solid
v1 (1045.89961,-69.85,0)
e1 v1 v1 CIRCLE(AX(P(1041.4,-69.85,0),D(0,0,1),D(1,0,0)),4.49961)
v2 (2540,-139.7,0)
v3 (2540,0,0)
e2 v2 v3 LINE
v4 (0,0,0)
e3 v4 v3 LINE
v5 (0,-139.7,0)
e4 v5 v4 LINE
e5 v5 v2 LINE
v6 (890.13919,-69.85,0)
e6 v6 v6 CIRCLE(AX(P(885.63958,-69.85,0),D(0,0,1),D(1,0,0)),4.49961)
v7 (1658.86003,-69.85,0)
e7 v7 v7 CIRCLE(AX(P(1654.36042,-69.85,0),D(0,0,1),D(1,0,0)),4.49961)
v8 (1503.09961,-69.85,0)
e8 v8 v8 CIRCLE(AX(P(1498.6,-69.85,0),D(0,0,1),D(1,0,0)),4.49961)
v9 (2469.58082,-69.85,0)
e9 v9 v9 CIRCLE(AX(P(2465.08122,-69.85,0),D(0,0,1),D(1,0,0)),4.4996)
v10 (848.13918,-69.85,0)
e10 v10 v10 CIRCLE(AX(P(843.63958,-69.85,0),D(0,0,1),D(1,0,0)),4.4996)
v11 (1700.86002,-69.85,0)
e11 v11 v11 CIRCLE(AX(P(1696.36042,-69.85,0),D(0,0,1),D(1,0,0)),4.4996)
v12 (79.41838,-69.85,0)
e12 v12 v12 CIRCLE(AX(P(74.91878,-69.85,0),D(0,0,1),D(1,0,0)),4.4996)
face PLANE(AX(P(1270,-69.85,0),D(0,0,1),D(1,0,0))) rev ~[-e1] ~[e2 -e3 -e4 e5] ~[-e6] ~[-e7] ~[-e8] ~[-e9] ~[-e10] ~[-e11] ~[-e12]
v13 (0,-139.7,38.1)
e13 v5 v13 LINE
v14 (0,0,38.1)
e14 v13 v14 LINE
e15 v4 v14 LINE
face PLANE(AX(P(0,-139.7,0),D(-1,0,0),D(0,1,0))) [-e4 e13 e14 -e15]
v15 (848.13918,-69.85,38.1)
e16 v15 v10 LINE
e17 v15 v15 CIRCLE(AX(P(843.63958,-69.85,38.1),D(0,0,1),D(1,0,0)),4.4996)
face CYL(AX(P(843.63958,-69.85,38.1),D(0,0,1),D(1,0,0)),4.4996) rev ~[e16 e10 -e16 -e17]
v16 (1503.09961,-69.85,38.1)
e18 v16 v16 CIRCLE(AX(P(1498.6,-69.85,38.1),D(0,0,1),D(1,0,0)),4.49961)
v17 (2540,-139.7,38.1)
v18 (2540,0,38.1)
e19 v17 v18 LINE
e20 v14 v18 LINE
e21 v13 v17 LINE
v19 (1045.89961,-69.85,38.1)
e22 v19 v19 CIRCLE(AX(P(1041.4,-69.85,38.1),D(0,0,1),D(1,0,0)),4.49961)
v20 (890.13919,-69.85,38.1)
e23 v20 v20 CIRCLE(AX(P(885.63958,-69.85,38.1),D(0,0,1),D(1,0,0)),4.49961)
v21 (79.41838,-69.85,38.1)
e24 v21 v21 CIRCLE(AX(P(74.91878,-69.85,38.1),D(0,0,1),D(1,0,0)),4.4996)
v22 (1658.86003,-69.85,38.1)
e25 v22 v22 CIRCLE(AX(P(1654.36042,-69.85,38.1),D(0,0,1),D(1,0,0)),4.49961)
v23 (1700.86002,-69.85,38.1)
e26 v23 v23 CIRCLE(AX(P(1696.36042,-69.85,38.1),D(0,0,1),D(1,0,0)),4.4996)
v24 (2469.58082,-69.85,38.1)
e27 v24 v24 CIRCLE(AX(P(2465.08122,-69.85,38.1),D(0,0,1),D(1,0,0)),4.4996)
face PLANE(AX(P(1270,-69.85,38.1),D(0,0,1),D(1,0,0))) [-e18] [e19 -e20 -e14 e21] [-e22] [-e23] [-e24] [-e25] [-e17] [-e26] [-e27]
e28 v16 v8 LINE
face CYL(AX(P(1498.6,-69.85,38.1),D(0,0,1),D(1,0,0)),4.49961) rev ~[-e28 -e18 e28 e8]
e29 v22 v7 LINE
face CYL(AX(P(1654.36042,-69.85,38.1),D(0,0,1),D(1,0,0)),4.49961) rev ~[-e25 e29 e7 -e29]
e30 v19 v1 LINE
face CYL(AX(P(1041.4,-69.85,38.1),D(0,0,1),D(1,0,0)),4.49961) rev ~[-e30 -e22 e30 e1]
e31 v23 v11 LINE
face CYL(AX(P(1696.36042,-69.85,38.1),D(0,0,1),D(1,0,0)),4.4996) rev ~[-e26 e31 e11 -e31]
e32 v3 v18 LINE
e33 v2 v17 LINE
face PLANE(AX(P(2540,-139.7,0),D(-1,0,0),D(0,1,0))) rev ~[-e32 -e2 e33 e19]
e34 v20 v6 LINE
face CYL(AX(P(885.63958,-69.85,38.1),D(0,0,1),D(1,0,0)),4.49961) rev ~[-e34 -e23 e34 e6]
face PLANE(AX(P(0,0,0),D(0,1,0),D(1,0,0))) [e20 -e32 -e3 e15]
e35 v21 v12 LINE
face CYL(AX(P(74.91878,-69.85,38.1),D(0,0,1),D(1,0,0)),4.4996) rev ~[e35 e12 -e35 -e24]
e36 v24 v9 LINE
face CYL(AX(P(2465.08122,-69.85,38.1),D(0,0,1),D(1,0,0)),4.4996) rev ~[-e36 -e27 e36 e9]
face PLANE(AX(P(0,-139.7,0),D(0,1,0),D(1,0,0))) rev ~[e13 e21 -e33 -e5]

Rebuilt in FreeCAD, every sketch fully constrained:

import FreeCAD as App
import Part
import Sketcher

V = App.Vector
Q = App.Units.Quantity


def add_polygon(sketch, points):
    """Adds a closed chain of lines whose ends are joined by coincident constraints."""
    first, n = sketch.GeometryCount, len(points)
    for a, b in zip(points, points[1:] + points[:1]):
        sketch.addGeometry(Part.LineSegment(App.Vector(*a, 0), App.Vector(*b, 0)), False)
    for i in range(n):
        sketch.addConstraint(Sketcher.Constraint("Coincident", first + i, 2, first + (i + 1) % n, 1))

doc = App.newDocument("Part")
body = doc.addObject("PartDesign::Body", "Body")

# Sketch on XY plane
sketch1 = body.newObject("Sketcher::SketchObject", "Sketch")
sketch1.AttachmentSupport = (doc.getObject("XY_Plane"), [""])
sketch1.MapMode = "FlatFace"
add_polygon(sketch1, [(0, 0), (0, -139.7), (2540, -139.7), (2540, 0)])  # lines 0-3
sketch1.addConstraint([
    Sketcher.Constraint("Vertical", 0),
    Sketcher.Constraint("Horizontal", 1),
    Sketcher.Constraint("Vertical", 2),
    Sketcher.Constraint("Horizontal", 3),
    Sketcher.Constraint("Coincident", 3, 2, -1, 1),
    Sketcher.Constraint("DistanceX", 1, 1, 1, 2, Q("100 in")),
    Sketcher.Constraint("DistanceY", 0, 2, 0, 1, Q("5.5 in")),
])
pad1 = body.newObject("PartDesign::Pad", "Pad")
pad1.Profile = sketch1
pad1.Length = Q("1.5 in")

# Sketch on XY plane
sketch2 = body.newObject("Sketcher::SketchObject", "Sketch001")
sketch2.AttachmentSupport = (doc.getObject("XY_Plane"), [""])
sketch2.MapMode = "FlatFace"
sketch2.AttachmentOffset = App.Placement(V(0, 0, 1.5 * 25.4), App.Rotation())
sketch2.addGeometry([
    Part.Circle(V(1654.36042, -69.85, 0), V(0, 0, 1), 4.49961),
    Part.Circle(V(885.63958, -69.85, 0), V(0, 0, 1), 4.49961),
    Part.Circle(V(1041.4, -69.85, 0), V(0, 0, 1), 4.49961),
    Part.Circle(V(1498.6, -69.85, 0), V(0, 0, 1), 4.49961),
], False)
sketch2.addConstraint([
    Sketcher.Constraint("Equal", 0, 1),
    Sketcher.Constraint("Equal", 1, 2),
    Sketcher.Constraint("Equal", 2, 3),
    Sketcher.Constraint("Horizontal", 0, 3, 1, 3),
    Sketcher.Constraint("Horizontal", 1, 3, 2, 3),
    Sketcher.Constraint("Horizontal", 2, 3, 3, 3),
    Sketcher.Constraint("DistanceX", -1, 1, 2, 3, Q("41 in")),
    Sketcher.Constraint("DistanceX", -1, 1, 3, 3, Q("59 in")),
    Sketcher.Constraint("Diameter", 0, Q("0.3543 in")),
    Sketcher.Constraint("DistanceY", 0, 3, -1, 1, Q("2.75 in")),
    Sketcher.Constraint("DistanceX", -1, 1, 0, 3, Q("65.1323 in")),
    Sketcher.Constraint("DistanceX", -1, 1, 1, 3, Q("34.8677 in")),
])
pocket1 = body.newObject("PartDesign::Pocket", "Pocket")
pocket1.Profile = sketch2
pocket1.Type = "ThroughAll"

# Sketch on XY plane
sketch3 = body.newObject("Sketcher::SketchObject", "Sketch002")
sketch3.AttachmentSupport = (doc.getObject("XY_Plane"), [""])
sketch3.MapMode = "FlatFace"
sketch3.AttachmentOffset = App.Placement(V(0, 0, 1.5 * 25.4), App.Rotation())
sketch3.addGeometry([
    Part.Circle(V(1696.36042, -69.85, 0), V(0, 0, 1), 4.4996),
    Part.Circle(V(2465.08122, -69.85, 0), V(0, 0, 1), 4.4996),
    Part.Circle(V(74.91878, -69.85, 0), V(0, 0, 1), 4.4996),
    Part.Circle(V(843.63958, -69.85, 0), V(0, 0, 1), 4.4996),
], False)
sketch3.addConstraint([
    Sketcher.Constraint("Equal", 0, 1),
    Sketcher.Constraint("Equal", 1, 2),
    Sketcher.Constraint("Equal", 2, 3),
    Sketcher.Constraint("Horizontal", 0, 3, 1, 3),
    Sketcher.Constraint("Horizontal", 1, 3, 2, 3),
    Sketcher.Constraint("Horizontal", 2, 3, 3, 3),
    Sketcher.Constraint("Diameter", 0, 8.9992),
    Sketcher.Constraint("DistanceY", 0, 3, -1, 1, Q("2.75 in")),
    Sketcher.Constraint("DistanceX", 0, 3, 1, 3, 768.7208),
    Sketcher.Constraint("DistanceX", 2, 3, 3, 3, 768.7208),
    Sketcher.Constraint("DistanceX", -1, 1, 0, 3, 1696.36042),
    Sketcher.Constraint("DistanceX", -1, 1, 2, 3, 74.91878),
])
pocket2 = body.newObject("PartDesign::Pocket", "Pocket001")
pocket2.Profile = sketch3
pocket2.Type = "ThroughAll"

doc.recompute()
